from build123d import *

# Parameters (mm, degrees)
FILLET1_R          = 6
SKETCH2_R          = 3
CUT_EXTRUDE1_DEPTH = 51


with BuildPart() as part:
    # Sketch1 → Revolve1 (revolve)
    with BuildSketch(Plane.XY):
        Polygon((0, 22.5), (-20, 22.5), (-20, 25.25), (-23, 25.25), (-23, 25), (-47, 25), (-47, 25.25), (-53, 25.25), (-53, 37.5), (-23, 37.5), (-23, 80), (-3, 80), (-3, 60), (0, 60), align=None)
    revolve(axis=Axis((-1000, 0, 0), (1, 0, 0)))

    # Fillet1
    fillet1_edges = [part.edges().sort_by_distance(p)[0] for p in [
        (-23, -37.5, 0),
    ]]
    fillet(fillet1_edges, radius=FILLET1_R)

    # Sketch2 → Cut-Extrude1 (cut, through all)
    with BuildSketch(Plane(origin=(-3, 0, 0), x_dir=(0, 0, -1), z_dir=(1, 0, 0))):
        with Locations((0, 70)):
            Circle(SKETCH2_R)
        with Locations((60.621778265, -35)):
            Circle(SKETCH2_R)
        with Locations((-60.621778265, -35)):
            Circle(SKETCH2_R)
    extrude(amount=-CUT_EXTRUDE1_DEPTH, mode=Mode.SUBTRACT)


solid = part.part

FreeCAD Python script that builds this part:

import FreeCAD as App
import Part
import Sketcher


def edges_at(feature, points):
    """Names of the edges that pass closest to the given points."""
    edges = feature.Shape.Edges
    near = lambda p: min(range(len(edges)), key=lambda i: edges[i].distToShape(Part.Vertex(*p))[0])
    return sorted({f"Edge{near(p) + 1}" for p in points})


def add_polygon(sketch, points):
    """Adds a closed chain of lines whose ends are joined by coincident constraints."""
    first, n = sketch.GeometryCount, len(points)
    for a, b in zip(points, points[1:] + points[:1]):
        sketch.addGeometry(Part.LineSegment(App.Vector(*a, 0), App.Vector(*b, 0)), False)
    for i in range(n):
        sketch.addConstraint(Sketcher.Constraint("Coincident", first + i, 2, first + (i + 1) % n, 1))

doc = App.newDocument("Part")
body = doc.addObject("PartDesign::Body", "Body")

# Sketch on XY plane
sketch1 = body.newObject("Sketcher::SketchObject", "Sketch")
sketch1.AttachmentSupport = (doc.getObject("XY_Plane"), [""])
sketch1.MapMode = "FlatFace"
add_polygon(sketch1, [(-20, 22.5), (0, 22.5), (0, 60), (-3, 60), (-3, 80), (-23, 80), (-23, 37.5), (-53, 37.5), (-53, 25.25), (-47, 25.25), (-47, 25), (-23, 25), (-23, 25.25), (-20, 25.25)])  # lines 0-13
sketch1.addConstraint(Sketcher.Constraint("Horizontal", 0))
sketch1.addConstraint(Sketcher.Constraint("Vertical", 1))
sketch1.addConstraint(Sketcher.Constraint("Horizontal", 2))
sketch1.addConstraint(Sketcher.Constraint("Vertical", 3))
sketch1.addConstraint(Sketcher.Constraint("Horizontal", 4))
sketch1.addConstraint(Sketcher.Constraint("Vertical", 5))
sketch1.addConstraint(Sketcher.Constraint("Horizontal", 6))
sketch1.addConstraint(Sketcher.Constraint("Vertical", 7))
sketch1.addConstraint(Sketcher.Constraint("Horizontal", 8))
sketch1.addConstraint(Sketcher.Constraint("Vertical", 9))
sketch1.addConstraint(Sketcher.Constraint("Horizontal", 10))
sketch1.addConstraint(Sketcher.Constraint("Vertical", 11))
sketch1.addConstraint(Sketcher.Constraint("Horizontal", 12))
sketch1.addConstraint(Sketcher.Constraint("Vertical", 13))
sketch1.addConstraint(Sketcher.Constraint("PointOnObject", 0, 2, -2))
sketch1.addConstraint(Sketcher.Constraint("Horizontal", 8, 2, 11, 2))
sketch1.addConstraint(Sketcher.Constraint("Vertical", 5, 2, 10, 2))
sketch1.addConstraint(Sketcher.Constraint("Equal", 0, 4))
sketch1.addConstraint(Sketcher.Constraint("Equal", 4, 3))
sketch1.addConstraint(Sketcher.Constraint("DistanceX", 0, 1, 0, 2, 20.0))
sketch1.addConstraint(Sketcher.Constraint("DistanceX", 2, 2, 2, 1, 3.0))
sketch1.addConstraint(Sketcher.Constraint("DistanceX", 6, 2, 6, 1, 30.0))
sketch1.addConstraint(Sketcher.Constraint("DistanceX", 8, 1, 8, 2, 6.0))
sketch1.addConstraint(Sketcher.Constraint("DistanceY", 1, 1, 1, 2, 37.5))
sketch1.addConstraint(Sketcher.Constraint("DistanceY", 5, 2, 5, 1, 42.5))
sketch1.addConstraint(Sketcher.Constraint("DistanceY", -1, 1, 1, 2, 60.0))
sketch1.addConstraint(Sketcher.Constraint("DistanceY", -1, 1, 9, 2, 25.0))
sketch1.addConstraint(Sketcher.Constraint("DistanceY", 7, 2, 7, 1, 12.25))
revolution = body.newObject("PartDesign::Revolution", "Revolution")
revolution.Profile = sketch1
revolution.ReferenceAxis = (sketch1, ["H_Axis"])
revolution.Angle = 360
doc.recompute()

fillet = body.newObject("PartDesign::Fillet", "Fillet")
fillet.Base = (revolution, edges_at(revolution, [(-23, -37.5, 0)]))
fillet.Radius = 6

# Sketch on YZ plane
sketch2 = body.newObject("Sketcher::SketchObject", "Sketch001")
sketch2.AttachmentSupport = (doc.getObject("YZ_Plane"), [""])
sketch2.MapMode = "FlatFace"
sketch2.AttachmentOffset = App.Placement(App.Vector(0, 0, -3), App.Rotation())
sketch2.addGeometry(Part.Circle(App.Vector(70, 0, 0), App.Vector(0, 0, 1), 3), False)
sketch2.addGeometry(Part.Circle(App.Vector(-35, -60.6, 0), App.Vector(0, 0, 1), 3), False)
sketch2.addGeometry(Part.Circle(App.Vector(-35, 60.6, 0), App.Vector(0, 0, 1), 3), False)
sketch2.addConstraint(Sketcher.Constraint("Equal", 0, 1))
sketch2.addConstraint(Sketcher.Constraint("Equal", 1, 2))
sketch2.addConstraint(Sketcher.Constraint("Symmetric", 1, 3, 2, 3, -1))
sketch2.addConstraint(Sketcher.Constraint("PointOnObject", 0, 3, -1))
sketch2.addConstraint(Sketcher.Constraint("Diameter", 0, 6.0))
sketch2.addConstraint(Sketcher.Constraint("DistanceX", -1, 1, 0, 3, 70.0))
sketch2.addConstraint(Sketcher.Constraint("DistanceX", 1, 3, -1, 1, 35.0))
sketch2.addConstraint(Sketcher.Constraint("DistanceY", 1, 3, -1, 1, 60.621778))
pocket1 = body.newObject("PartDesign::Pocket", "Pocket")
pocket1.Profile = sketch2
pocket1.Type = "ThroughAll"

doc.recompute()
